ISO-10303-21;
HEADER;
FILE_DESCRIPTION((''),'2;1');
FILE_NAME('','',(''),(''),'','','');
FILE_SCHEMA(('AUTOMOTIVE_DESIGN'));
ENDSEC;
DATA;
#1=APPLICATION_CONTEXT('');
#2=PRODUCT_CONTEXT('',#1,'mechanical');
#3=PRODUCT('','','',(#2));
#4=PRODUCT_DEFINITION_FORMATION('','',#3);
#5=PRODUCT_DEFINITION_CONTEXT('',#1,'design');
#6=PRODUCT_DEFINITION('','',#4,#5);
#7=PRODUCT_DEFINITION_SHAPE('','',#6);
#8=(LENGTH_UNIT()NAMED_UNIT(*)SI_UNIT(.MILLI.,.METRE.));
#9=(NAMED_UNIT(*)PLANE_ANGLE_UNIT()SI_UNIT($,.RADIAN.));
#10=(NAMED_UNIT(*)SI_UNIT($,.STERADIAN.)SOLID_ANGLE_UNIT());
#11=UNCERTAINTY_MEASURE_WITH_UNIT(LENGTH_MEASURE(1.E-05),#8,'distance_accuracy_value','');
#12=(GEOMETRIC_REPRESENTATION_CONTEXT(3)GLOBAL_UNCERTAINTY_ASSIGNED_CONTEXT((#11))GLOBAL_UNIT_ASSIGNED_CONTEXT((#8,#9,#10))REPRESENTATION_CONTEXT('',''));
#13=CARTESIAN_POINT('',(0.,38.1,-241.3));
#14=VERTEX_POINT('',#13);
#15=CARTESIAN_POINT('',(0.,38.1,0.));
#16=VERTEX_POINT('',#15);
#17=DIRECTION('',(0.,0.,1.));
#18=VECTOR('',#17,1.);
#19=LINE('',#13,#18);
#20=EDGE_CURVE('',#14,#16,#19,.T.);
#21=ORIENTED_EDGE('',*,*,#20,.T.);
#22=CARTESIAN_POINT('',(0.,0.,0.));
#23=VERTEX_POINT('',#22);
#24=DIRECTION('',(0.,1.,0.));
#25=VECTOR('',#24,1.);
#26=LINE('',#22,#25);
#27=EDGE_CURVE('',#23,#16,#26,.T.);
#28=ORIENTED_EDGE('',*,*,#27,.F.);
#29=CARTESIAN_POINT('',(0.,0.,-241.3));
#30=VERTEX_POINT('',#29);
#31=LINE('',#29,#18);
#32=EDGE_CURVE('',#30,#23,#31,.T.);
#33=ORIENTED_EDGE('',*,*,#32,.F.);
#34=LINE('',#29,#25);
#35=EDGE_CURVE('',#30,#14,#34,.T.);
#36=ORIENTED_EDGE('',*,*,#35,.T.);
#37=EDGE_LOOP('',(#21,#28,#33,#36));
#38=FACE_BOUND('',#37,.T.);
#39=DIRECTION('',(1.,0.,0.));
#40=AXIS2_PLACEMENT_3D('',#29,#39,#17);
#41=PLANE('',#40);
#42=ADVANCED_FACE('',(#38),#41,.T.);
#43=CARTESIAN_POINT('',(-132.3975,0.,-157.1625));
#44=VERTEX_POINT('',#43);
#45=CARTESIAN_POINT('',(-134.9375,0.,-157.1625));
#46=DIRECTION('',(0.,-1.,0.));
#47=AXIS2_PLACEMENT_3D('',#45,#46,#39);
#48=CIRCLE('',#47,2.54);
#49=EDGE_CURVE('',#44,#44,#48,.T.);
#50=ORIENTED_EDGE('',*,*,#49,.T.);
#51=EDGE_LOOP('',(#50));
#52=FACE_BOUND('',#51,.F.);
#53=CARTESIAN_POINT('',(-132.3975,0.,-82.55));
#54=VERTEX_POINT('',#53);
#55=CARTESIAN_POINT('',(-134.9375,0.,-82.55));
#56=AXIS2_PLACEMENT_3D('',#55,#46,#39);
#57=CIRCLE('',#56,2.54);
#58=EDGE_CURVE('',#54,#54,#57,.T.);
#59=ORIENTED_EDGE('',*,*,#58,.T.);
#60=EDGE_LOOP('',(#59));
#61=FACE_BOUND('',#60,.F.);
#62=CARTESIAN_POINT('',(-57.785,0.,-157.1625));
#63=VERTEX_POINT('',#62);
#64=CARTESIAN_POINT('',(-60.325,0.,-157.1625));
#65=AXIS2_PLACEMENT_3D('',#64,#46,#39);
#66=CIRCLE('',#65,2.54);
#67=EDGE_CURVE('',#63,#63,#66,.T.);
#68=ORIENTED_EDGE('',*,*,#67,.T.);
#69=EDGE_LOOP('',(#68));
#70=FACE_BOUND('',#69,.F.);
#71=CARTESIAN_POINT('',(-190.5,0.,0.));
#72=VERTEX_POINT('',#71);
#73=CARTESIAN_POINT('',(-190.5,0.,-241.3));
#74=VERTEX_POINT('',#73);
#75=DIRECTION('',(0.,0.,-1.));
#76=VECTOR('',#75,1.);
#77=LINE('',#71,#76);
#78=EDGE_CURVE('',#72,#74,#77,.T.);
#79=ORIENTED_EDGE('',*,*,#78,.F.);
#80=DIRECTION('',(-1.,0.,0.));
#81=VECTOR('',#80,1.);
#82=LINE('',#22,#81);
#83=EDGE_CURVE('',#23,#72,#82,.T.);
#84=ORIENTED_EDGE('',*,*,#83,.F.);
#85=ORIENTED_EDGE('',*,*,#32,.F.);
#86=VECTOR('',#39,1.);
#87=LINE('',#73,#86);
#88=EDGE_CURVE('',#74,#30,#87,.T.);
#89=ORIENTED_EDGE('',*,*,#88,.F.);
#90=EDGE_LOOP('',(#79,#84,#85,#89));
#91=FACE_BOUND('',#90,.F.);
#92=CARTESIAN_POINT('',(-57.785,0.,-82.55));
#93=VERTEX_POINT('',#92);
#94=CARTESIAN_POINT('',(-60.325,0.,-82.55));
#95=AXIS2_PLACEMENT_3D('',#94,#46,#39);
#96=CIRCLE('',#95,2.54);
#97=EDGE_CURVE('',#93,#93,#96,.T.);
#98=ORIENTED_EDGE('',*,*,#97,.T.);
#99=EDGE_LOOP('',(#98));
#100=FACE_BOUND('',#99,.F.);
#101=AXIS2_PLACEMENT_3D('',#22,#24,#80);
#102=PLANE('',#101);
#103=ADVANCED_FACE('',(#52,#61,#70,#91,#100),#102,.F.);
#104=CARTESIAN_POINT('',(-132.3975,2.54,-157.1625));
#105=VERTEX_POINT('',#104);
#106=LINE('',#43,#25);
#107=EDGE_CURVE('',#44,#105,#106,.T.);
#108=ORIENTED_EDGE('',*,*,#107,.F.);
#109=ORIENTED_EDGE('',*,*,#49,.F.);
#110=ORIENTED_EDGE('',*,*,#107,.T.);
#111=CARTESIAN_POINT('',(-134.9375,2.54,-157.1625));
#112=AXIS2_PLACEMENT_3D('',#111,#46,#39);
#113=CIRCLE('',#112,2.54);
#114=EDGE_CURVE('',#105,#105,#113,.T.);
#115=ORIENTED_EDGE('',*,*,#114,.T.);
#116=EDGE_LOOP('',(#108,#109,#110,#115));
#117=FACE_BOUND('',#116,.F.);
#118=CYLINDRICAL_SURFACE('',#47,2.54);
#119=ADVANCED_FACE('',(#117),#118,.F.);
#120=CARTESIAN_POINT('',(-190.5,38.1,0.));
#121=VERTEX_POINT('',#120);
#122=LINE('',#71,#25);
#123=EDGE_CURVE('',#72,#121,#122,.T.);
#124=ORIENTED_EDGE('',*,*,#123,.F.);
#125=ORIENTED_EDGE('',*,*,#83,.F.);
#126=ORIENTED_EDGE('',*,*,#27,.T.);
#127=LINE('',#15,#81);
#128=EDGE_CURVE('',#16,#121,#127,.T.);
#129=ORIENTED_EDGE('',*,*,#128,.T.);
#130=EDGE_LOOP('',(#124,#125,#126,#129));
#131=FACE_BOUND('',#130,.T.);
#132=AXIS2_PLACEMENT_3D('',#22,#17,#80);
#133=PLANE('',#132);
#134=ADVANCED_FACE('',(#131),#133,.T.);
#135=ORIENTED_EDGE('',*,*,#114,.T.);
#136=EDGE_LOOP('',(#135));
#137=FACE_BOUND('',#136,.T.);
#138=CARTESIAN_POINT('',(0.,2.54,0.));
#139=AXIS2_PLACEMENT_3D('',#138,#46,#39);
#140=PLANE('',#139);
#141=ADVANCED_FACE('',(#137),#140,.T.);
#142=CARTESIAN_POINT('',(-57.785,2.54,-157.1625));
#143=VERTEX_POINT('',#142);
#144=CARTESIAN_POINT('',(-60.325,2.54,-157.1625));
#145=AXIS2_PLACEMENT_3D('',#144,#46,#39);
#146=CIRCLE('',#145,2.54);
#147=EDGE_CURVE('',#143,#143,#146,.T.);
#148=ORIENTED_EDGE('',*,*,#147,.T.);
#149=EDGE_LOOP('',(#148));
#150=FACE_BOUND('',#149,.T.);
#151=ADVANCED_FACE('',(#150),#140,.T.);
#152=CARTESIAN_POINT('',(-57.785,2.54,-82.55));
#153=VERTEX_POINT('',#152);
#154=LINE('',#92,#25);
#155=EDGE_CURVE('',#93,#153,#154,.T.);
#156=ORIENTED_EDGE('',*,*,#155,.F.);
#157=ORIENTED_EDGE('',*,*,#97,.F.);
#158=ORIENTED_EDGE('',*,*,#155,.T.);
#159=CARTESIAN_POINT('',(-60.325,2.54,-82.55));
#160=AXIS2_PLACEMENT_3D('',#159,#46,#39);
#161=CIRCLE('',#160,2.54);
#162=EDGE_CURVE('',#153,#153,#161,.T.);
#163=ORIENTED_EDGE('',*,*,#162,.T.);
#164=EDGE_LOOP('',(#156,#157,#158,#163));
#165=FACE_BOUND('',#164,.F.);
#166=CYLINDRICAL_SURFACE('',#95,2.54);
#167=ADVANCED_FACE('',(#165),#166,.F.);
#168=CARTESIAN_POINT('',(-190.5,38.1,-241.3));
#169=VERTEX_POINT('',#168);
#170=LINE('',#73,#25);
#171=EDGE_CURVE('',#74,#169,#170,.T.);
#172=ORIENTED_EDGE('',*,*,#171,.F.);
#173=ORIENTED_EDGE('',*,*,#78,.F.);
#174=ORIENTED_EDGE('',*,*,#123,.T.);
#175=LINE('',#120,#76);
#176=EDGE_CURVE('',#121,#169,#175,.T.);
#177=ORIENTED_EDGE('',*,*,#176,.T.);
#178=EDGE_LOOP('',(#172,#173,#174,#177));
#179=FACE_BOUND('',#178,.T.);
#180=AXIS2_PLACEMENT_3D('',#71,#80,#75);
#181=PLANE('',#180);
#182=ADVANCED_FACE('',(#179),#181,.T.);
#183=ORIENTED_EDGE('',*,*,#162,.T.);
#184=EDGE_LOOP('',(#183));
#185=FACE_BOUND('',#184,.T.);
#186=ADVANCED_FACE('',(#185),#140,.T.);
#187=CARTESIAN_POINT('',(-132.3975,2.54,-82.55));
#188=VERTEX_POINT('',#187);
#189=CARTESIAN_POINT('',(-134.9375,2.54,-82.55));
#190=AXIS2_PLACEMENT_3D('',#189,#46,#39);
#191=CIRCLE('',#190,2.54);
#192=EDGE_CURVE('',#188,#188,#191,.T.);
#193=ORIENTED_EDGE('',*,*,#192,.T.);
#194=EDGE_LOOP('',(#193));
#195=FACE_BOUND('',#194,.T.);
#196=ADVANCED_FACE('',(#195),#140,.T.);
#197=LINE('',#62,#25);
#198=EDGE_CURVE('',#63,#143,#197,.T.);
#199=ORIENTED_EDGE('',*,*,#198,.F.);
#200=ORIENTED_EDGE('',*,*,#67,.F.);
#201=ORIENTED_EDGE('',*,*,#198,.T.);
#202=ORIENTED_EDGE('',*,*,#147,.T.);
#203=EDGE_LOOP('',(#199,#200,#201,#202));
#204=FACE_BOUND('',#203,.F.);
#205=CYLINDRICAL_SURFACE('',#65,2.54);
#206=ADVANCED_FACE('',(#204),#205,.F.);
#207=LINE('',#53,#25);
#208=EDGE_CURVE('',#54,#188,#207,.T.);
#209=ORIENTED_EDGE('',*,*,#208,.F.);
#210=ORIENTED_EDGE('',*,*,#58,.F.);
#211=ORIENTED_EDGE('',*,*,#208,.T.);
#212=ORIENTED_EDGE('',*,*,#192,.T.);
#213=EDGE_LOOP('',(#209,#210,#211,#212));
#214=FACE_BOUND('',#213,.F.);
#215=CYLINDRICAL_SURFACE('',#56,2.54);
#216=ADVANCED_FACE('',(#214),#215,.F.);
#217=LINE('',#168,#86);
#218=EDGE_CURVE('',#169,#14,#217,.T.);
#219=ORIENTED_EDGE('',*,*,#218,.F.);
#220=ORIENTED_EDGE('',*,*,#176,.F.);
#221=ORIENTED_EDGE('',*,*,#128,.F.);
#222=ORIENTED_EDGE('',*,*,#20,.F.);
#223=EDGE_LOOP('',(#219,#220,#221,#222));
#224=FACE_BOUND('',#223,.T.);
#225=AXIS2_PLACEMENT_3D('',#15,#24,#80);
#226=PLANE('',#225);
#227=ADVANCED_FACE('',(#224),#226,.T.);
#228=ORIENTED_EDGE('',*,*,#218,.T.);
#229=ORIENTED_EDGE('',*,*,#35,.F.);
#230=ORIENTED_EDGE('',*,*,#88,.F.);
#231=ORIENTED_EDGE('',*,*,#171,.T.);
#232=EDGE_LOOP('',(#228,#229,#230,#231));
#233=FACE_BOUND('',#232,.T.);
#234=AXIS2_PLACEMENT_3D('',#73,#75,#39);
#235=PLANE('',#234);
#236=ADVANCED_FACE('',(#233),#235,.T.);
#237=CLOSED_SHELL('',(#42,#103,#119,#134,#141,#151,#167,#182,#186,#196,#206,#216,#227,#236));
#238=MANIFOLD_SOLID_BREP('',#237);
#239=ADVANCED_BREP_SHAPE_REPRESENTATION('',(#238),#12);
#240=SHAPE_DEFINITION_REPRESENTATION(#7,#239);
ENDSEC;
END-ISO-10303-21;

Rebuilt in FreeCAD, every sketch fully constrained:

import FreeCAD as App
import Part
import Sketcher
Q = App.Units.Quantity

doc = App.newDocument("Part")
body = doc.addObject("PartDesign::Body", "Body")

sketch1 = body.newObject("Sketcher::SketchObject", "Sketch")
sketch1.AttachmentSupport = (doc.getObject("XZ_Plane"), [""])
sketch1.MapMode = "FlatFace"
sketch1.addGeometry(Part.LineSegment(App.Vector(-190, 0, 0), App.Vector(0, 0, 0)), False)
sketch1.addGeometry(Part.LineSegment(App.Vector(0, 0, 0), App.Vector(0, -241, 0)), False)
sketch1.addGeometry(Part.LineSegment(App.Vector(0, -241, 0), App.Vector(-190, -241, 0)), False)
sketch1.addGeometry(Part.LineSegment(App.Vector(-190, -241, 0), App.Vector(-190, 0, 0)), False)
sketch1.addConstraint(Sketcher.Constraint("Coincident", 0, 2, 1, 1))
sketch1.addConstraint(Sketcher.Constraint("Coincident", 1, 2, 2, 1))
sketch1.addConstraint(Sketcher.Constraint("Coincident", 2, 2, 3, 1))
sketch1.addConstraint(Sketcher.Constraint("Coincident", 3, 2, 0, 1))
sketch1.addConstraint(Sketcher.Constraint("Horizontal", 0))
sketch1.addConstraint(Sketcher.Constraint("Vertical", 1))
sketch1.addConstraint(Sketcher.Constraint("Horizontal", 2))
sketch1.addConstraint(Sketcher.Constraint("Vertical", 3))
sketch1.addConstraint(Sketcher.Constraint("Coincident", 0, 2, -1, 1))
sketch1.addConstraint(Sketcher.Constraint("DistanceX", 0, 1, 0, 2, Q("7.5 in")))
sketch1.addConstraint(Sketcher.Constraint("DistanceY", 1, 2, 1, 1, Q("9.5 in")))
pad1 = body.newObject("PartDesign::Pad", "Pad")
pad1.Profile = sketch1
pad1.Length = Q("1.5 in")
pad1.Reversed = True

sketch2 = body.newObject("Sketcher::SketchObject", "Sketch001")
sketch2.AttachmentSupport = (doc.getObject("XZ_Plane"), [""])
sketch2.MapMode = "FlatFace"
sketch2.addGeometry(Part.Circle(App.Vector(-134.9, -157.2, 0), App.Vector(0, 0, 1), 2.5), False)
sketch2.addGeometry(Part.Circle(App.Vector(-60.3, -157.2, 0), App.Vector(0, 0, 1), 2.5), False)
sketch2.addGeometry(Part.Circle(App.Vector(-134.9, -82.5, 0), App.Vector(0, 0, 1), 2.5), False)
sketch2.addGeometry(Part.Circle(App.Vector(-60.3, -82.5, 0), App.Vector(0, 0, 1), 2.5), False)
sketch2.addConstraint(Sketcher.Constraint("Equal", 0, 1))
sketch2.addConstraint(Sketcher.Constraint("Equal", 1, 2))
sketch2.addConstraint(Sketcher.Constraint("Equal", 2, 3))
sketch2.addConstraint(Sketcher.Constraint("Horizontal", 0, 3, 1, 3))
sketch2.addConstraint(Sketcher.Constraint("Horizontal", 2, 3, 3, 3))
sketch2.addConstraint(Sketcher.Constraint("Vertical", 0, 3, 2, 3))
sketch2.addConstraint(Sketcher.Constraint("Vertical", 1, 3, 3, 3))
sketch2.addConstraint(Sketcher.Constraint("Diameter", 0, Q("0.2 in")))
sketch2.addConstraint(Sketcher.Constraint("DistanceX", 0, 3, 1, 3, Q("2.9375 in")))
sketch2.addConstraint(Sketcher.Constraint("DistanceY", 0, 3, 2, 3, Q("2.9375 in")))
sketch2.addConstraint(Sketcher.Constraint("DistanceY", 2, 3, -1, 1, Q("3.25 in")))
sketch2.addConstraint(Sketcher.Constraint("DistanceX", 0, 3, -1, 1, Q("5.3125 in")))
pocket1 = body.newObject("PartDesign::Pocket", "Pocket")
pocket1.Profile = sketch2
pocket1.Length = Q("0.1 in")

doc.recompute()
